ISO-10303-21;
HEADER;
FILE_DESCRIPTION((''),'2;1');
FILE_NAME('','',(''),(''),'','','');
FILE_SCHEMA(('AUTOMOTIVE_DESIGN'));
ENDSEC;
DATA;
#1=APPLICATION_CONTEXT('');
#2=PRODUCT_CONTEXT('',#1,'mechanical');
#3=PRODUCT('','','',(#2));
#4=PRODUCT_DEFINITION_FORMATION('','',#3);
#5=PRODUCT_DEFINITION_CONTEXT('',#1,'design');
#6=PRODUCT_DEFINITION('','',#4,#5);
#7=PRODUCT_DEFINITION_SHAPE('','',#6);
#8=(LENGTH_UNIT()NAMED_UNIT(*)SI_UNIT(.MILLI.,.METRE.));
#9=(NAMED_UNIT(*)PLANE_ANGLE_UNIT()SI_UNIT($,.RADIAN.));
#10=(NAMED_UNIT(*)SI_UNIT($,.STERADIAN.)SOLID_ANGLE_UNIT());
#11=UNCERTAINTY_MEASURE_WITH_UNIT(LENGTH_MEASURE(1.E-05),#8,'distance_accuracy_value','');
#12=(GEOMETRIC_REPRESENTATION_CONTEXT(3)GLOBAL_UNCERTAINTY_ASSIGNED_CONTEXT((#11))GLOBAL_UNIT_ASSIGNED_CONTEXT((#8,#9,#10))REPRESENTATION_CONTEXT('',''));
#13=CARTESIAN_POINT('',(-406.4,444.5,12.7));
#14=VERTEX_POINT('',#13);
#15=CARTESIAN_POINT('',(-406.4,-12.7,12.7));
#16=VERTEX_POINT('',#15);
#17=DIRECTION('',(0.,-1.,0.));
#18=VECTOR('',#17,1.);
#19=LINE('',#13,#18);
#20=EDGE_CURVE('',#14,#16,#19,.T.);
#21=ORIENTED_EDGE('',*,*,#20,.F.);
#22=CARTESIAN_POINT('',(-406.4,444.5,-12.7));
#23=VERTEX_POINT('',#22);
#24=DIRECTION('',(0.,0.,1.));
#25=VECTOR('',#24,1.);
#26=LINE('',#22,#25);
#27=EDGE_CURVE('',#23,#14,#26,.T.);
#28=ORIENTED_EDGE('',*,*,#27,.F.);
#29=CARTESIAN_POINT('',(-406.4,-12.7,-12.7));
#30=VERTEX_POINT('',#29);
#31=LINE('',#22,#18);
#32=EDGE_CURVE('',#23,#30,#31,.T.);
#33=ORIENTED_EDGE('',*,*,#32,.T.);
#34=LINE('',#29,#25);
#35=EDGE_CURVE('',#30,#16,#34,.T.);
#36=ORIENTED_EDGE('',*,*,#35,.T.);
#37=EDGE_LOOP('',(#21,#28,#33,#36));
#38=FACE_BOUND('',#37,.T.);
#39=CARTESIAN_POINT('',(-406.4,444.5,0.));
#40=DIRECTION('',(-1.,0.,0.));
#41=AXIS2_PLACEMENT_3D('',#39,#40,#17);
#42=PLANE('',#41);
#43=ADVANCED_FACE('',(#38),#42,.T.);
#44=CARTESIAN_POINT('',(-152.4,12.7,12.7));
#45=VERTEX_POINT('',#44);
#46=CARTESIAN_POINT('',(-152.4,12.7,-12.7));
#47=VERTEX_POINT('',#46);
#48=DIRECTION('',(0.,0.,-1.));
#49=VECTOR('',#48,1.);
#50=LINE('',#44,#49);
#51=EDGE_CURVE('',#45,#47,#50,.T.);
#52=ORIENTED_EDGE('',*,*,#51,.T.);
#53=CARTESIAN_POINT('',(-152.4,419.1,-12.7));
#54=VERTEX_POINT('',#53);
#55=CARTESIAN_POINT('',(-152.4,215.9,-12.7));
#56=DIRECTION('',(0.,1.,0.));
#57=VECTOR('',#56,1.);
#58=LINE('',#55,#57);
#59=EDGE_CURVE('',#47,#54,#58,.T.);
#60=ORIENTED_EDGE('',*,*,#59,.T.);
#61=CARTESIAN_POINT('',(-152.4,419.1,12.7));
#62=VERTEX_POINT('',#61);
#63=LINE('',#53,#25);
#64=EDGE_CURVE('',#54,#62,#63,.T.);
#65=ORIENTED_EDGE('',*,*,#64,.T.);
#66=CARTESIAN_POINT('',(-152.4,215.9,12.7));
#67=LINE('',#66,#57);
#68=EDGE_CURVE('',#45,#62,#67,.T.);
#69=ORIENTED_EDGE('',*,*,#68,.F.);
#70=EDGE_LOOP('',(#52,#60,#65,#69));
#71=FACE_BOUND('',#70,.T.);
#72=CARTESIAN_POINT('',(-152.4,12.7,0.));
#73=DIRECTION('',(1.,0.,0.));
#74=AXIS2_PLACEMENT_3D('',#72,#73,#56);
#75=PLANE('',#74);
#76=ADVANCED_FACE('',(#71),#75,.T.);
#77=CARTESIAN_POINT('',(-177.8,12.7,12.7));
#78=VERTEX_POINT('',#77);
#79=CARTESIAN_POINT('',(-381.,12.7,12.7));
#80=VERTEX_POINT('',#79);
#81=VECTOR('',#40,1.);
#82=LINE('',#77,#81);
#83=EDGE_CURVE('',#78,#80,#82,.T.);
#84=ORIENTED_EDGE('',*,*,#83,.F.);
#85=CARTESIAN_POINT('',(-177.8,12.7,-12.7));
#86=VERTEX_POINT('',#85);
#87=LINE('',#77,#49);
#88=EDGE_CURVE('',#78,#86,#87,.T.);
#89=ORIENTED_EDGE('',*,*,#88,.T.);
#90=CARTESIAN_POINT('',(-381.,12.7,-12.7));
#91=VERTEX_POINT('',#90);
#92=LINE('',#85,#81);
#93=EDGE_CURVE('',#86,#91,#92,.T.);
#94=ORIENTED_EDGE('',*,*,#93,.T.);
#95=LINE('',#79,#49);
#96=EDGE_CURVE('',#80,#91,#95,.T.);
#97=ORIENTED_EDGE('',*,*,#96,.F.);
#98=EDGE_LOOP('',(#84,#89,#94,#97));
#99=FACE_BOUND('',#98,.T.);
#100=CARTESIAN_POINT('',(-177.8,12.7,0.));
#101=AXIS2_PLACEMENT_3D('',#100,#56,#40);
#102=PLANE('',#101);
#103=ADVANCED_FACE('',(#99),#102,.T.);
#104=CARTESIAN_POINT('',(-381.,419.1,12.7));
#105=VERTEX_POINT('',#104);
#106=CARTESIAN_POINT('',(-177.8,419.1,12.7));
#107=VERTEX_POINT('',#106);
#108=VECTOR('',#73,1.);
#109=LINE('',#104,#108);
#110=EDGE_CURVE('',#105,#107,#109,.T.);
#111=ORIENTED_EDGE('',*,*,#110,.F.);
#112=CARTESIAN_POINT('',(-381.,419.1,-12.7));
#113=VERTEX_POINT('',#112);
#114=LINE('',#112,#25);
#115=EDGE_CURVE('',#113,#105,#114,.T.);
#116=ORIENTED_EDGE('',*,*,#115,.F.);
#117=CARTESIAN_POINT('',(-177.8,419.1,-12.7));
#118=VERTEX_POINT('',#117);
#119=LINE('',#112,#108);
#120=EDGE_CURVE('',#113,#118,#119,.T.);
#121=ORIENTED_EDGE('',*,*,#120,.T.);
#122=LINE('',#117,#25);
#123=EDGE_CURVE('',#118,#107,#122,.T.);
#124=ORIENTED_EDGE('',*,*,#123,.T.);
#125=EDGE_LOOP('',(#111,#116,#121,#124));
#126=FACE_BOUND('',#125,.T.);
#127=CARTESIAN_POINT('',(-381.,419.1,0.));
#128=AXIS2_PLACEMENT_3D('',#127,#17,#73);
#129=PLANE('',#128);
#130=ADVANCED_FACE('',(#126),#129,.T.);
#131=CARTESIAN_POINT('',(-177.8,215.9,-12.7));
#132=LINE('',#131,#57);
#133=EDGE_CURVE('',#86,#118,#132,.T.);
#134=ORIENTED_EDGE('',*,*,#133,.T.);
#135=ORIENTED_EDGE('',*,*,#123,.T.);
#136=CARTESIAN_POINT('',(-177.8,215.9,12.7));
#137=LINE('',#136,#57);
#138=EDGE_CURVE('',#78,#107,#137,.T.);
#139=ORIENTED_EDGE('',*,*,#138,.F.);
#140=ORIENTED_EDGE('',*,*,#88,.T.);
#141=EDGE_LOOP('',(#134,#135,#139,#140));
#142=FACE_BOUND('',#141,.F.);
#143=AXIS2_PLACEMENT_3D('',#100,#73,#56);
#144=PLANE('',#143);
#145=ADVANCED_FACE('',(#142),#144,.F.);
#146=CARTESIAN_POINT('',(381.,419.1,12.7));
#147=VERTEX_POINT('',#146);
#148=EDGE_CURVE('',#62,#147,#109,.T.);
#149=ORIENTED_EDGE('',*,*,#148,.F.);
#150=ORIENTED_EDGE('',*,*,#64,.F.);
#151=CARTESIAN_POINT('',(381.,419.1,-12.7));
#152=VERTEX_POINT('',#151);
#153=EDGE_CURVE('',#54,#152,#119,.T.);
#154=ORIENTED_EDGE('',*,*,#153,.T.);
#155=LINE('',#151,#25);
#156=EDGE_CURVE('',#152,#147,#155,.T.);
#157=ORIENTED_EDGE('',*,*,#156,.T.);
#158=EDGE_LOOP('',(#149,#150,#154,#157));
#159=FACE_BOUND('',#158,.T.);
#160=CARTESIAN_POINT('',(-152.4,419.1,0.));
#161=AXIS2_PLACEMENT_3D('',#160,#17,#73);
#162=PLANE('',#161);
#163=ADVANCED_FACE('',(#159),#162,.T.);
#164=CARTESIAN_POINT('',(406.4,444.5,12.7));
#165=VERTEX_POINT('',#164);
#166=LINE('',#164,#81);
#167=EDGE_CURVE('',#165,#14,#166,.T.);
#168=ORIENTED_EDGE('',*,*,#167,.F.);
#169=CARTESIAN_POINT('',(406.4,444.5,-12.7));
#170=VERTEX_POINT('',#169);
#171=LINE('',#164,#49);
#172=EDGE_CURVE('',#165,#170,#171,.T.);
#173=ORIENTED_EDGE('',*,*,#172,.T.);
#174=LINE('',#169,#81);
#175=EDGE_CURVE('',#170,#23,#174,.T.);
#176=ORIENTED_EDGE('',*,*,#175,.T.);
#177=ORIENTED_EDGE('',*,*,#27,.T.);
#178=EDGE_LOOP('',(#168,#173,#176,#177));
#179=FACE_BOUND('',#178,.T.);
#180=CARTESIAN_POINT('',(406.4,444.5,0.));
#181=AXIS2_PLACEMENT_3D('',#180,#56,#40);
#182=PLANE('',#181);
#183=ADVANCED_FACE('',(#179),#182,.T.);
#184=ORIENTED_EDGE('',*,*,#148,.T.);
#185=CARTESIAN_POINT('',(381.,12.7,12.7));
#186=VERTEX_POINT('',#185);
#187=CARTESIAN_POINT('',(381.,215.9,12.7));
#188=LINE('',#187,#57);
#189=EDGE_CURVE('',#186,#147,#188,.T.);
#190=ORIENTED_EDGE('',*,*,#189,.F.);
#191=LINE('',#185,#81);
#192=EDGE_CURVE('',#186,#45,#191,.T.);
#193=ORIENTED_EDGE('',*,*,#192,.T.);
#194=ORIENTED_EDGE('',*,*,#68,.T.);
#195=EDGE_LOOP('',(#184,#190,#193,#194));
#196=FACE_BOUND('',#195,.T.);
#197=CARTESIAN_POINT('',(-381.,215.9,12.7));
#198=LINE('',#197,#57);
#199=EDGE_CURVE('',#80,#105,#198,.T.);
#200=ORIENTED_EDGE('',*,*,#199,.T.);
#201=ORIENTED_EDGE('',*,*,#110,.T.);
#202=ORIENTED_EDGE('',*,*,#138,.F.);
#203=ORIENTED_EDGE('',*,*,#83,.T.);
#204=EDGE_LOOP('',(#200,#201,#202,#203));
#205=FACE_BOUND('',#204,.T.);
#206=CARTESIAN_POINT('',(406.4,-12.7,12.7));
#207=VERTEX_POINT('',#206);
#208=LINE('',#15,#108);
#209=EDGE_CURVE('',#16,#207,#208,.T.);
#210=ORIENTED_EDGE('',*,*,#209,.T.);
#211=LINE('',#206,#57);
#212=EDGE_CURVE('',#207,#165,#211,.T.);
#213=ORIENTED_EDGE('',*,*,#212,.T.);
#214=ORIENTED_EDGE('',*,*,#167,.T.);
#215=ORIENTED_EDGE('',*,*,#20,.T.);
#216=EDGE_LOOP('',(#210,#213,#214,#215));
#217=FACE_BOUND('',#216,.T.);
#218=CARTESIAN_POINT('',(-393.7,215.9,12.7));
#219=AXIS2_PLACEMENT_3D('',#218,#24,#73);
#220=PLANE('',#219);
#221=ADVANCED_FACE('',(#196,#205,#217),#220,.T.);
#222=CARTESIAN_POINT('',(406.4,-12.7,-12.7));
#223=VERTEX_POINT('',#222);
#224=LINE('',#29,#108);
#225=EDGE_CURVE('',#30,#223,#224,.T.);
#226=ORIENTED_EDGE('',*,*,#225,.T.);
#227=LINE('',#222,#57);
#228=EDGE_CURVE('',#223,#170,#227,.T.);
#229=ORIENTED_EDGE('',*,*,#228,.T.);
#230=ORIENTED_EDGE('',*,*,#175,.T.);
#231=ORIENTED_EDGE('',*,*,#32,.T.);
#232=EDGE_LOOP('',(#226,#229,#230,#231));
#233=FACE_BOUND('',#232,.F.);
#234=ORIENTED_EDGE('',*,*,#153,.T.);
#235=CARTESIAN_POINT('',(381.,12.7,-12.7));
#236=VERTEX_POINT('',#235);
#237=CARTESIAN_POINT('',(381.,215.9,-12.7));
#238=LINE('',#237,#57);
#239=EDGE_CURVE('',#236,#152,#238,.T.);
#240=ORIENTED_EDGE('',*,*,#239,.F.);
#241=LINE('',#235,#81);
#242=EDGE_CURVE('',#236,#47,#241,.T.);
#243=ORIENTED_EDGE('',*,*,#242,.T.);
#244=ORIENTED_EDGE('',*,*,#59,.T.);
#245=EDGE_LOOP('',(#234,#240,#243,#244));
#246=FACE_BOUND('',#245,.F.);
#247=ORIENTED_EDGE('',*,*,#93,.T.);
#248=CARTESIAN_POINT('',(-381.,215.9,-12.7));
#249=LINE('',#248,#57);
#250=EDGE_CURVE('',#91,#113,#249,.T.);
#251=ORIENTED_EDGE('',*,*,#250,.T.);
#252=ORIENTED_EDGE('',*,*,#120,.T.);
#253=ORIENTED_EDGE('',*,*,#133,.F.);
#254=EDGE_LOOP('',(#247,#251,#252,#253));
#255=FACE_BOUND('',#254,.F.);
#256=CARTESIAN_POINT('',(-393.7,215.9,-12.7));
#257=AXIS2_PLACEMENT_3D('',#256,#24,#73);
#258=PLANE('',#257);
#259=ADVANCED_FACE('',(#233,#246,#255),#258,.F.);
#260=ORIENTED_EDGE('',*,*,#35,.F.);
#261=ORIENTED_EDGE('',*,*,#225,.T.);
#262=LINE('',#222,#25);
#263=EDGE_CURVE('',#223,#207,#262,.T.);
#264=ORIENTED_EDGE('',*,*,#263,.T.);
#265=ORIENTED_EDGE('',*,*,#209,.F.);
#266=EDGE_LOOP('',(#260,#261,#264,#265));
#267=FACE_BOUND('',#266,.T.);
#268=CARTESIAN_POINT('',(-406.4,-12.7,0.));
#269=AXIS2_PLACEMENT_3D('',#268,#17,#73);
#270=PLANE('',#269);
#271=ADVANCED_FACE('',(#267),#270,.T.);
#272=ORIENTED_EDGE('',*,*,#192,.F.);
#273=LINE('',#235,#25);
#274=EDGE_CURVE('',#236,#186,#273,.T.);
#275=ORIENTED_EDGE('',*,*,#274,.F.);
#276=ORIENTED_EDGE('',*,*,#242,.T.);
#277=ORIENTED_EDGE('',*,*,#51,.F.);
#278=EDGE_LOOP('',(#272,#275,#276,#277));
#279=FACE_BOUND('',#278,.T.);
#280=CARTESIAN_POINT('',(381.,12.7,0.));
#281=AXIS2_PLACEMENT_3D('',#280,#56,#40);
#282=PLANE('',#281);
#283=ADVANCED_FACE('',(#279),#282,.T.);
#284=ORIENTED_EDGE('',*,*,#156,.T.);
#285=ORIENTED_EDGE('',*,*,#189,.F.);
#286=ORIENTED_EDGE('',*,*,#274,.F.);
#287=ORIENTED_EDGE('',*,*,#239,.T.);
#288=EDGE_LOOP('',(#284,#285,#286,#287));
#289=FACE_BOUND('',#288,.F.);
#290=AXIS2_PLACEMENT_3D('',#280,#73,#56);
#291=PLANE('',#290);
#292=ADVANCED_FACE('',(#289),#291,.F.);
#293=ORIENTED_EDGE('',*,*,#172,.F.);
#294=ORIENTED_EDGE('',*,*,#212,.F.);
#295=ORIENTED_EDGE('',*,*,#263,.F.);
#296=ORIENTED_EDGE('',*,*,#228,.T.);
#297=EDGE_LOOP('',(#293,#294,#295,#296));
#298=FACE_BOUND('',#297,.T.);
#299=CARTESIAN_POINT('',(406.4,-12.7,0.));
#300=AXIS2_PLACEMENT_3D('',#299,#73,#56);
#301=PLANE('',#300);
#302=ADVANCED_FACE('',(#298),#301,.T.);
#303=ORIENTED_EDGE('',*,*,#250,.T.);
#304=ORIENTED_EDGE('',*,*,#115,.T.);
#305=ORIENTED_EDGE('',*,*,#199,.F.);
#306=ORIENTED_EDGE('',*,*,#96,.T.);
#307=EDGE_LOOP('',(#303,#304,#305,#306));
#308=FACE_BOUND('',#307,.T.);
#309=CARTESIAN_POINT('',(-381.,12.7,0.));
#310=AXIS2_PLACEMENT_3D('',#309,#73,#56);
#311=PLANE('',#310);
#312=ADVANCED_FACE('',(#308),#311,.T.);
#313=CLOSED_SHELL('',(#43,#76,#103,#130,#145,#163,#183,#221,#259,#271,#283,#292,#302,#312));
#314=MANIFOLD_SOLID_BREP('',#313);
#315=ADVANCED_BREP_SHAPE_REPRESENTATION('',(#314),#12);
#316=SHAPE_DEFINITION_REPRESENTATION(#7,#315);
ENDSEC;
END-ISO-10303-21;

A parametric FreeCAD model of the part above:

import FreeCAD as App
import Part
import Sketcher

V = App.Vector
Q = App.Units.Quantity


def add_polygon(sketch, points):
    """Adds a closed chain of lines whose ends are joined by coincident constraints."""
    first, n = sketch.GeometryCount, len(points)
    for a, b in zip(points, points[1:] + points[:1]):
        sketch.addGeometry(Part.LineSegment(App.Vector(*a, 0), App.Vector(*b, 0)), False)
    for i in range(n):
        sketch.addConstraint(Sketcher.Constraint("Coincident", first + i, 2, first + (i + 1) % n, 1))

doc = App.newDocument("Part")
params = doc.addObject("Spreadsheet::Sheet", "Params")
for row, (alias, value) in enumerate([
    ("sketch1_width", "32 in"),
    ("sketch1_width2", "8 in"),
    ("sketch1_width3", "21 in"),
    ("sketch1_height", "18 in"),
    ("sketch1_height2", "16 in"),
    ("pad1_length", "1 in"),
], start=1):
    params.set(f"A{row}", alias)
    params.set(f"B{row}", "=" + value)
    params.setAlias(f"B{row}", alias)

body = doc.addObject("PartDesign::Body", "Body")

sketch1 = body.newObject("Sketcher::SketchObject", "Sketch")
sketch1.AttachmentSupport = (doc.getObject("XY_Plane"), [""])
sketch1.MapMode = "FlatFace"
add_polygon(sketch1, [(406.4, 444.5), (-406.4, 444.5), (-406.4, -12.7), (406.4, -12.7)])
add_polygon(sketch1, [(-381, 12.7), (-381, 419.1), (-177.8, 419.1), (-177.8, 12.7)])
add_polygon(sketch1, [(-152.4, 12.7), (-152.4, 419.1), (381, 419.1), (381, 12.7)])
sketch1.addConstraint([
    Sketcher.Constraint("Horizontal", 0),
    Sketcher.Constraint("Vertical", 1),
    Sketcher.Constraint("Horizontal", 2),
    Sketcher.Constraint("Vertical", 3),
    Sketcher.Constraint("Vertical", 4),
    Sketcher.Constraint("Horizontal", 5),
    Sketcher.Constraint("Vertical", 6),
    Sketcher.Constraint("Horizontal", 7),
    Sketcher.Constraint("Vertical", 8),
    Sketcher.Constraint("Horizontal", 9),
    Sketcher.Constraint("Vertical", 10),
    Sketcher.Constraint("Horizontal", 11),
    Sketcher.Constraint("Symmetric", 4, 2, 9, 2, -2),
    Sketcher.Constraint("Horizontal", 7, 2, 10, 2),
    Sketcher.Constraint("DistanceX", 0, 2, 0, 1, Q("32 in")),
    Sketcher.Constraint("DistanceX", 5, 1, 5, 2, Q("8 in")),
    Sketcher.Constraint("DistanceX", 9, 1, 9, 2, Q("21 in")),
    Sketcher.Constraint("DistanceY", 1, 2, 1, 1, Q("18 in")),
    Sketcher.Constraint("DistanceY", 4, 1, 4, 2, Q("16 in")),
    Sketcher.Constraint("DistanceX", 0, 2, -1, 1, Q("16 in")),
    Sketcher.Constraint("DistanceX", 4, 2, -1, 1, Q("15 in")),
    Sketcher.Constraint("DistanceY", 4, 2, 0, 2, Q("1 in")),
    Sketcher.Constraint("DistanceY", -1, 1, 0, 2, Q("17.5 in")),
])
sketch1.setExpression("Constraints[26]", "Params.sketch1_width")
sketch1.setExpression("Constraints[27]", "Params.sketch1_width2")
sketch1.setExpression("Constraints[28]", "Params.sketch1_width3")
sketch1.setExpression("Constraints[29]", "Params.sketch1_height")
sketch1.setExpression("Constraints[30]", "Params.sketch1_height2")
pad1 = body.newObject("PartDesign::Pad", "Pad")
pad1.Profile = sketch1
pad1.setExpression("Length", "Params.pad1_length")
pad1.Midplane = True

doc.recompute()
